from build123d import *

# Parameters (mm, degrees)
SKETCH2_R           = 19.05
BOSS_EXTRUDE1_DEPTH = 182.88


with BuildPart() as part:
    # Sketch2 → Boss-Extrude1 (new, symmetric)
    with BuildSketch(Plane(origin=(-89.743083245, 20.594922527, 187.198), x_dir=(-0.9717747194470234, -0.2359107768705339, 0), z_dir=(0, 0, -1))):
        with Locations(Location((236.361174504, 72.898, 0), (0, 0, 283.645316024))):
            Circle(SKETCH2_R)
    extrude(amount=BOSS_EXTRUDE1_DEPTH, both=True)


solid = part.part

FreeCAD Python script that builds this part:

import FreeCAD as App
import Part
import Sketcher
from FreeCAD import Vector
Q = App.Units.Quantity

doc = App.newDocument("Part")
body = doc.addObject("PartDesign::Body", "Body")

# Sketch on XY plane
sketch1 = body.newObject("Sketcher::SketchObject", "Sketch")
sketch1.AttachmentSupport = (doc.getObject("XY_Plane"), [""])
sketch1.MapMode = "FlatFace"
sketch1.AttachmentOffset = App.Placement(Vector(0, 0, 7.37 * 25.4), App.Rotation())
sketch1.addGeometry(Part.Circle(Vector(-337, 36, 0), Vector(0, 0, 1), 19), False)
sketch1.addConstraint(Sketcher.Constraint("Diameter", 0, Q("1.5 in")))
sketch1.addConstraint(Sketcher.Constraint("DistanceX", 0, 3, -1, 1, 336.630321))
sketch1.addConstraint(Sketcher.Constraint("DistanceY", -1, 1, 0, 3, 35.675208))
pad1 = body.newObject("PartDesign::Pad", "Pad")
pad1.Profile = sketch1
pad1.Length = Q("14.4 in")
pad1.Midplane = True

doc.recompute()
